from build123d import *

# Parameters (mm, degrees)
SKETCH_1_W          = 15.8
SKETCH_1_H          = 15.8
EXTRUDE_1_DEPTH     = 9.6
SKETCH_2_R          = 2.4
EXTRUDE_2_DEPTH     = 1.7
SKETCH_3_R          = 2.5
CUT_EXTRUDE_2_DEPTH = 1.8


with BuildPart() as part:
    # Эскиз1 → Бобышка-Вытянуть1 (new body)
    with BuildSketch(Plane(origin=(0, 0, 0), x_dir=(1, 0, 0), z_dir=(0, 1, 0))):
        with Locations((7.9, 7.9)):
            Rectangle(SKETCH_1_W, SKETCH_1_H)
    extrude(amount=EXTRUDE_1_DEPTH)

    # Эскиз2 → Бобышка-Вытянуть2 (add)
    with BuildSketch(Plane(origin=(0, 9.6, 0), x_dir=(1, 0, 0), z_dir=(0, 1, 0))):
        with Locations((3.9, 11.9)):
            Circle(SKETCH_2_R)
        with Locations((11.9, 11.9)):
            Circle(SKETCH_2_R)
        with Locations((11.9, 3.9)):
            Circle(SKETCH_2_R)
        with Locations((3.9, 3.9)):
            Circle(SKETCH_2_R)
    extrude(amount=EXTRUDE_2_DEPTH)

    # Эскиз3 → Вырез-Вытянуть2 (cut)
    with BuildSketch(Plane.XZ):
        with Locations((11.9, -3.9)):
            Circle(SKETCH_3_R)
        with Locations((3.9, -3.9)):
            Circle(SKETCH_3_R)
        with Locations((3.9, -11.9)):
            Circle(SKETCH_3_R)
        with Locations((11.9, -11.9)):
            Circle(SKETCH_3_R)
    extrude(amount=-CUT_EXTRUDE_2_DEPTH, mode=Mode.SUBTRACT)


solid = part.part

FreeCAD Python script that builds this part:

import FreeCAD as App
import Part
import Sketcher

V = App.Vector
Q = App.Units.Quantity

doc = App.newDocument("Part")
body = doc.addObject("PartDesign::Body", "Body")

sketch1 = body.newObject("Sketcher::SketchObject", "Sketch")
sketch1.AttachmentSupport = (doc.getObject("XZ_Plane"), [""])
sketch1.MapMode = "FlatFace"
sketch1.addGeometry([
    Part.LineSegment(V(0, -16, 0), V(0, 0, 0)),
    Part.LineSegment(V(0, 0, 0), V(16, 0, 0)),
    Part.LineSegment(V(16, 0, 0), V(16, -16, 0)),
    Part.LineSegment(V(16, -16, 0), V(0, -16, 0)),
], False)
sketch1.addConstraint([
    Sketcher.Constraint("Coincident", 0, 2, 1, 1),
    Sketcher.Constraint("Coincident", 1, 2, 2, 1),
    Sketcher.Constraint("Coincident", 2, 2, 3, 1),
    Sketcher.Constraint("Coincident", 3, 2, 0, 1),
    Sketcher.Constraint("Vertical", 0),
    Sketcher.Constraint("Horizontal", 1),
    Sketcher.Constraint("Vertical", 2),
    Sketcher.Constraint("Horizontal", 3),
    Sketcher.Constraint("Coincident", 0, 2, -1, 1),
    Sketcher.Constraint("Equal", 3, 0),
    Sketcher.Constraint("DistanceX", 1, 1, 1, 2, Q("15.8 mm")),
])
pad1 = body.newObject("PartDesign::Pad", "Pad")
pad1.Profile = sketch1
pad1.Length = 9.6
pad1.Reversed = True

sketch2 = body.newObject("Sketcher::SketchObject", "Sketch001")
sketch2.AttachmentSupport = (doc.getObject("XZ_Plane"), [""])
sketch2.MapMode = "FlatFace"
sketch2.AttachmentOffset = App.Placement(V(0, 0, -9.6), App.Rotation())
sketch2.addGeometry([
    Part.Circle(V(3.9, -11.9, 0), V(0, 0, 1), 2.4),
    Part.Circle(V(11.9, -11.9, 0), V(0, 0, 1), 2.4),
    Part.Circle(V(11.9, -3.9, 0), V(0, 0, 1), 2.4),
    Part.Circle(V(3.9, -3.9, 0), V(0, 0, 1), 2.4),
], False)
sketch2.addConstraint([
    Sketcher.Constraint("Equal", 0, 1),
    Sketcher.Constraint("Equal", 1, 2),
    Sketcher.Constraint("Equal", 2, 3),
    Sketcher.Constraint("Horizontal", 0, 3, 1, 3),
    Sketcher.Constraint("Horizontal", 2, 3, 3, 3),
    Sketcher.Constraint("Vertical", 1, 3, 2, 3),
    Sketcher.Constraint("Vertical", 0, 3, 3, 3),
    Sketcher.Constraint("Diameter", 0, Q("4.8 mm")),
    Sketcher.Constraint("DistanceX", 0, 3, 1, 3, Q("8 mm")),
    Sketcher.Constraint("DistanceY", 1, 3, 2, 3, Q("8 mm")),
    Sketcher.Constraint("DistanceX", -1, 1, 0, 3, Q("3.9 mm")),
    Sketcher.Constraint("DistanceY", 0, 3, -1, 1, Q("11.9 mm")),
])
pad2 = body.newObject("PartDesign::Pad", "Pad001")
pad2.Profile = sketch2
pad2.Length = 1.7
pad2.Reversed = True

sketch3 = body.newObject("Sketcher::SketchObject", "Sketch002")
sketch3.AttachmentSupport = (doc.getObject("XZ_Plane"), [""])
sketch3.MapMode = "FlatFace"
sketch3.addGeometry([
    Part.Circle(V(11.9, -3.9, 0), V(0, 0, 1), 2.5),
    Part.Circle(V(3.9, -3.9, 0), V(0, 0, 1), 2.5),
    Part.Circle(V(3.9, -11.9, 0), V(0, 0, 1), 2.5),
    Part.Circle(V(11.9, -11.9, 0), V(0, 0, 1), 2.5),
], False)
sketch3.addConstraint([
    Sketcher.Constraint("Equal", 0, 1),
    Sketcher.Constraint("Equal", 1, 2),
    Sketcher.Constraint("Equal", 2, 3),
    Sketcher.Constraint("Horizontal", 0, 3, 1, 3),
    Sketcher.Constraint("Horizontal", 2, 3, 3, 3),
    Sketcher.Constraint("Vertical", 1, 3, 2, 3),
    Sketcher.Constraint("Vertical", 0, 3, 3, 3),
    Sketcher.Constraint("Diameter", 0, Q("5 mm")),
    Sketcher.Constraint("DistanceX", 1, 3, 0, 3, Q("8 mm")),
    Sketcher.Constraint("DistanceY", 2, 3, 1, 3, Q("8 mm")),
    Sketcher.Constraint("DistanceX", -1, 1, 0, 3, Q("11.9 mm")),
    Sketcher.Constraint("DistanceY", 0, 3, -1, 1, Q("3.9 mm")),
])
pocket1 = body.newObject("PartDesign::Pocket", "Pocket")
pocket1.Profile = sketch3
pocket1.Length = 1.8

doc.recompute()
